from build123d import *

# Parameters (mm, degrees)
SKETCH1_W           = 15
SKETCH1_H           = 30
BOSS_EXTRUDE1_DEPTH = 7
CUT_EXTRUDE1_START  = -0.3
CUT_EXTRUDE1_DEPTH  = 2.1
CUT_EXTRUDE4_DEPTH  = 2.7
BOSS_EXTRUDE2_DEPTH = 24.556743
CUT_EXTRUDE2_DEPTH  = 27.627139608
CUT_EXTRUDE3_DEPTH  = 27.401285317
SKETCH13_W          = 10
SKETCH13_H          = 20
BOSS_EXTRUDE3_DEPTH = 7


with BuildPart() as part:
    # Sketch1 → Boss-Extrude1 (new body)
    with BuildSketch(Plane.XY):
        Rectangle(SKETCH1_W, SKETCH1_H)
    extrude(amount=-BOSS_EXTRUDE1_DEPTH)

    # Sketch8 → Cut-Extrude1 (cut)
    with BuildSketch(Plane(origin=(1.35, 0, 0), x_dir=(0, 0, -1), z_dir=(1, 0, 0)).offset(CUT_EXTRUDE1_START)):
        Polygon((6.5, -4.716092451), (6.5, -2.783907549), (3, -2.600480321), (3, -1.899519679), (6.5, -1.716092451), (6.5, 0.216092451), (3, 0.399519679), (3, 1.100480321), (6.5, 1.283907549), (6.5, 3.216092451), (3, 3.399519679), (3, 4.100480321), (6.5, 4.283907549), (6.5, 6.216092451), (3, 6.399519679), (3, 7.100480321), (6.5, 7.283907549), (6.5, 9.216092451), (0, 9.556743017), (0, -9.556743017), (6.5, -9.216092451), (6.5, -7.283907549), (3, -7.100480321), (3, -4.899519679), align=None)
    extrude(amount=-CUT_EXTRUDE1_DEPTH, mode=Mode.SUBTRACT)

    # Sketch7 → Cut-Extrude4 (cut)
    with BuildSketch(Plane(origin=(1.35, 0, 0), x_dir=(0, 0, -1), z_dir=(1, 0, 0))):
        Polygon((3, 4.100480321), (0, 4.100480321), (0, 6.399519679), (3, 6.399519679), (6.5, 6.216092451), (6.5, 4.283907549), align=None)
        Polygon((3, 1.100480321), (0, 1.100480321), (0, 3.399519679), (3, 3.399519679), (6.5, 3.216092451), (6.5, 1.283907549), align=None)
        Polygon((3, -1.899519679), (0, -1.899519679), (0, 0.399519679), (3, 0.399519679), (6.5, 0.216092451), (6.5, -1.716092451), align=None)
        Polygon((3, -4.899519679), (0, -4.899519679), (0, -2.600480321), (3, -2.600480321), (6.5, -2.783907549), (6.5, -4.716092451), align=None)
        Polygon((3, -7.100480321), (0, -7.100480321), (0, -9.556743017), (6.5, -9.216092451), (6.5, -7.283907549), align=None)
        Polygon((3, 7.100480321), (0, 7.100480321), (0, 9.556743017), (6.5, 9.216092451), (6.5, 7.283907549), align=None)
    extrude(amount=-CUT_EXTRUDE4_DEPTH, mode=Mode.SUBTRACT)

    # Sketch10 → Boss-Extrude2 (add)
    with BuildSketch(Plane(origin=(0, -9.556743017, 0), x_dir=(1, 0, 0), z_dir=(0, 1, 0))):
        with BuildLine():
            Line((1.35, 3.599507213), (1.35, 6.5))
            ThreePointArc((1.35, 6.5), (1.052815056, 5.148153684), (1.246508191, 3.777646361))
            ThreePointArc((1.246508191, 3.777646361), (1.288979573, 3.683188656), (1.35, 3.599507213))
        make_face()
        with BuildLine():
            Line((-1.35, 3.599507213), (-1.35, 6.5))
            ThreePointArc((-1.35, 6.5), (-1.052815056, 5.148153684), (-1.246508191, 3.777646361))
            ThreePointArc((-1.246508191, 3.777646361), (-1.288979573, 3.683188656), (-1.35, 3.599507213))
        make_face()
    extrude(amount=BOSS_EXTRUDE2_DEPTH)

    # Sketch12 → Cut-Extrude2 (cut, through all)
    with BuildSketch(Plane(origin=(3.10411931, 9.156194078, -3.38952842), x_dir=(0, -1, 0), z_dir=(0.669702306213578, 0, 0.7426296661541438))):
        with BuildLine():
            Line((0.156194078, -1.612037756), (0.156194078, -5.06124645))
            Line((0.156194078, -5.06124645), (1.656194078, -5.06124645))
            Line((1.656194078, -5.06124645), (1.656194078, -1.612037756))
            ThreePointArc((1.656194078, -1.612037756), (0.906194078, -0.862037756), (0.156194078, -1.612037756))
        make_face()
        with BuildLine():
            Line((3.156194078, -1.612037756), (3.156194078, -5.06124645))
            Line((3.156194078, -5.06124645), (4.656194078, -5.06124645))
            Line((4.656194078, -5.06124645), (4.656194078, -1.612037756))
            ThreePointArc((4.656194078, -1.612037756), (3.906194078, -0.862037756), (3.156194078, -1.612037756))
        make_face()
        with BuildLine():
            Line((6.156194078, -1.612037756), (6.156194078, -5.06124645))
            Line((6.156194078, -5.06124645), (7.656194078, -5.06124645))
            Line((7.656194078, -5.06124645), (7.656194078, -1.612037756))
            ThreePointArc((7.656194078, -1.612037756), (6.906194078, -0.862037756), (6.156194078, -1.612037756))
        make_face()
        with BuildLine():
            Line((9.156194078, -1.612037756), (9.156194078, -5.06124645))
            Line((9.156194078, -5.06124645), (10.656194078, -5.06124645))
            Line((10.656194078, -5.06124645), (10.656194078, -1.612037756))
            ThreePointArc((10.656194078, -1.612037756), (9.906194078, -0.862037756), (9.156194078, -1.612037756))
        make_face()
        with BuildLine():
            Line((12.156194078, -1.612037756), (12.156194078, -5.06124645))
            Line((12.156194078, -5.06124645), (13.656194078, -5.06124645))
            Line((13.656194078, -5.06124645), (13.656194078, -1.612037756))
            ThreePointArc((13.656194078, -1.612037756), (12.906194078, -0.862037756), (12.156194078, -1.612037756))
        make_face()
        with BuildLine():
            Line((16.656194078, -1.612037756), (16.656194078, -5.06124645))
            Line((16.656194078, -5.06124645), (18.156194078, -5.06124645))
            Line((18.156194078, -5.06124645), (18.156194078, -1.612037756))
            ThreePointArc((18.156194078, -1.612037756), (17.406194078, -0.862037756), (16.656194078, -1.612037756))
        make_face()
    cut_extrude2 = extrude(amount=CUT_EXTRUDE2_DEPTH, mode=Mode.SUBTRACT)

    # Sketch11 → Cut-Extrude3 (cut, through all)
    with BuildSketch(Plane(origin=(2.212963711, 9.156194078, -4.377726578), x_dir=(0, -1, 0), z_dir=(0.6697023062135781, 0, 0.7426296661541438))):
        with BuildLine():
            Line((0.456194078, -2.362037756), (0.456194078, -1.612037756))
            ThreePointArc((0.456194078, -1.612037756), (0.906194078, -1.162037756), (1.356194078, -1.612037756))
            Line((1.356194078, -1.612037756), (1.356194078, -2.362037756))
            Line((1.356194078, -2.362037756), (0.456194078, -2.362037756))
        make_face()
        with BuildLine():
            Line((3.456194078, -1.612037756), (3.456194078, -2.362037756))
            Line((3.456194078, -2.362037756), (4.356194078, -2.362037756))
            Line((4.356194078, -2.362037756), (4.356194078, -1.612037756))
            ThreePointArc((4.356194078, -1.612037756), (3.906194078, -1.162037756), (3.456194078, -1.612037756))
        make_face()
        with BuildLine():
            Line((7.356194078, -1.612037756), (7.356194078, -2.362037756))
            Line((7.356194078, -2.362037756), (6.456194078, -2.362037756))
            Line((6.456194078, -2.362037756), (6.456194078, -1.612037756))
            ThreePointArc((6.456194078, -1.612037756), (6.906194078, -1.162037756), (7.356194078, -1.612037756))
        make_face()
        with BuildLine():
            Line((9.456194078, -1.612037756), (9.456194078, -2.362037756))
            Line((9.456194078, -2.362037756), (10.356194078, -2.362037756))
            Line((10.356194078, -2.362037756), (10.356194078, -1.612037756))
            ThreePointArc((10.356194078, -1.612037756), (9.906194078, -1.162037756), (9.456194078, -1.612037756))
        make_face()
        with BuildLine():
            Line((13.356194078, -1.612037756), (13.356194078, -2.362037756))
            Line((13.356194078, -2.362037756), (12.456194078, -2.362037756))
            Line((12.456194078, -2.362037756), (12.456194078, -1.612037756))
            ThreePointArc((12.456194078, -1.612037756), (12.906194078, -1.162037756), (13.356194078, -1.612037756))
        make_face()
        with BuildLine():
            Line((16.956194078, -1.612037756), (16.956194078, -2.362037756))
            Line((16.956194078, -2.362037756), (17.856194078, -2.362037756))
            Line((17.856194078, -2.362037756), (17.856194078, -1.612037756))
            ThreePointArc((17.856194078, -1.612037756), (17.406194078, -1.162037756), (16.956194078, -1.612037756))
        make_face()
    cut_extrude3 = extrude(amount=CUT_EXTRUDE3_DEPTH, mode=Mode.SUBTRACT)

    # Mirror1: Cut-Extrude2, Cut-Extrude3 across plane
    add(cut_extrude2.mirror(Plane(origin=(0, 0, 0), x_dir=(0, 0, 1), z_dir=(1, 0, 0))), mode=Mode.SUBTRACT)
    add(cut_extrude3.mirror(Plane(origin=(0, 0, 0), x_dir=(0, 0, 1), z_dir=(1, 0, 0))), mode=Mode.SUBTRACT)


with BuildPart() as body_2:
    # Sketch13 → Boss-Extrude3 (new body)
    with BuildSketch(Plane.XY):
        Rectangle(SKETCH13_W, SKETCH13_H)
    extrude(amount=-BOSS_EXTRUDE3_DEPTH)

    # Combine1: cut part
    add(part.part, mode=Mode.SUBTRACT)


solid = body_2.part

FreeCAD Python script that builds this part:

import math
import FreeCAD as App
import Part
import Sketcher

V = App.Vector
Q = App.Units.Quantity

doc = App.newDocument("Part")
body = doc.addObject("PartDesign::Body", "Body")

sketch1 = body.newObject("Sketcher::SketchObject", "Sketch")
sketch1.AttachmentSupport = (doc.getObject("XY_Plane"), [""])
sketch1.MapMode = "FlatFace"
sketch1.addGeometry([
    Part.LineSegment(V(-7.5, 15, 0), V(-7.5, -15, 0)),
    Part.LineSegment(V(-7.5, -15, 0), V(7.5, -15, 0)),
    Part.LineSegment(V(7.5, -15, 0), V(7.5, 15, 0)),
    Part.LineSegment(V(7.5, 15, 0), V(-7.5, 15, 0)),
], False)
sketch1.addConstraint([
    Sketcher.Constraint("Coincident", 0, 2, 1, 1),
    Sketcher.Constraint("Coincident", 1, 2, 2, 1),
    Sketcher.Constraint("Coincident", 2, 2, 3, 1),
    Sketcher.Constraint("Coincident", 3, 2, 0, 1),
    Sketcher.Constraint("Vertical", 0),
    Sketcher.Constraint("Horizontal", 1),
    Sketcher.Constraint("Vertical", 2),
    Sketcher.Constraint("Horizontal", 3),
    Sketcher.Constraint("Symmetric", 0, 2, 2, 2, -1, 1),
    Sketcher.Constraint("DistanceX", 1, 1, 1, 2, Q("15 mm")),
    Sketcher.Constraint("DistanceY", 0, 2, 0, 1, Q("30 mm")),
])
pad1 = body.newObject("PartDesign::Pad", "Pad")
pad1.Profile = sketch1
pad1.Length = 7
pad1.Reversed = True

sketch2 = body.newObject("Sketcher::SketchObject", "Sketch001")
sketch2.AttachmentSupport = (doc.getObject("YZ_Plane"), [""])
sketch2.MapMode = "FlatFace"
sketch2.AttachmentOffset = App.Placement(V(0, 0, 1.05), App.Rotation())
sketch2.addGeometry([
    Part.LineSegment(V(-4.716092, -6.5, 0), V(-2.783908, -6.5, 0)),
    Part.LineSegment(V(-2.783908, -6.5, 0), V(-2.60048, -3, 0)),
    Part.LineSegment(V(-2.60048, -3, 0), V(-1.89952, -3, 0)),
    Part.LineSegment(V(-1.89952, -3, 0), V(-1.716092, -6.5, 0)),
    Part.LineSegment(V(-1.716092, -6.5, 0), V(0.216092, -6.5, 0)),
    Part.LineSegment(V(0.216092, -6.5, 0), V(0.39952, -3, 0)),
    Part.LineSegment(V(0.39952, -3, 0), V(1.10048, -3, 0)),
    Part.LineSegment(V(1.10048, -3, 0), V(1.283908, -6.5, 0)),
    Part.LineSegment(V(1.283908, -6.5, 0), V(3.216092, -6.5, 0)),
    Part.LineSegment(V(3.216092, -6.5, 0), V(3.39952, -3, 0)),
    Part.LineSegment(V(3.39952, -3, 0), V(4.10048, -3, 0)),
    Part.LineSegment(V(4.10048, -3, 0), V(4.283908, -6.5, 0)),
    Part.LineSegment(V(4.283908, -6.5, 0), V(6.216092, -6.5, 0)),
    Part.LineSegment(V(6.216092, -6.5, 0), V(6.39952, -3, 0)),
    Part.LineSegment(V(6.39952, -3, 0), V(7.10048, -3, 0)),
    Part.LineSegment(V(7.10048, -3, 0), V(7.283908, -6.5, 0)),
    Part.LineSegment(V(7.283908, -6.5, 0), V(9.216092, -6.5, 0)),
    Part.LineSegment(V(9.216092, -6.5, 0), V(9.556743, 0, 0)),
    Part.LineSegment(V(9.556743, 0, 0), V(-9.556743, 0, 0)),
    Part.LineSegment(V(-9.556743, 0, 0), V(-9.216092, -6.5, 0)),
    Part.LineSegment(V(-9.216092, -6.5, 0), V(-7.283908, -6.5, 0)),
    Part.LineSegment(V(-7.283908, -6.5, 0), V(-7.10048, -3, 0)),
    Part.LineSegment(V(-7.10048, -3, 0), V(-4.89952, -3, 0)),
    Part.LineSegment(V(-4.89952, -3, 0), V(-4.716092, -6.5, 0)),
], False)
sketch2.addConstraint([
    Sketcher.Constraint("Coincident", 0, 2, 1, 1),
    Sketcher.Constraint("Coincident", 1, 2, 2, 1),
    Sketcher.Constraint("Coincident", 2, 2, 3, 1),
    Sketcher.Constraint("Coincident", 3, 2, 4, 1),
    Sketcher.Constraint("Coincident", 4, 2, 5, 1),
    Sketcher.Constraint("Coincident", 5, 2, 6, 1),
    Sketcher.Constraint("Coincident", 6, 2, 7, 1),
    Sketcher.Constraint("Coincident", 7, 2, 8, 1),
    Sketcher.Constraint("Coincident", 8, 2, 9, 1),
    Sketcher.Constraint("Coincident", 9, 2, 10, 1),
    Sketcher.Constraint("Coincident", 10, 2, 11, 1),
    Sketcher.Constraint("Coincident", 11, 2, 12, 1),
    Sketcher.Constraint("Coincident", 12, 2, 13, 1),
    Sketcher.Constraint("Coincident", 13, 2, 14, 1),
    Sketcher.Constraint("Coincident", 14, 2, 15, 1),
    Sketcher.Constraint("Coincident", 15, 2, 16, 1),
    Sketcher.Constraint("Coincident", 16, 2, 17, 1),
    Sketcher.Constraint("Coincident", 17, 2, 18, 1),
    Sketcher.Constraint("Coincident", 18, 2, 19, 1),
    Sketcher.Constraint("Coincident", 19, 2, 20, 1),
    Sketcher.Constraint("Coincident", 20, 2, 21, 1),
    Sketcher.Constraint("Coincident", 21, 2, 22, 1),
    Sketcher.Constraint("Coincident", 22, 2, 23, 1),
    Sketcher.Constraint("Coincident", 23, 2, 0, 1),
    Sketcher.Constraint("Horizontal", 0),
    Sketcher.Constraint("Horizontal", 2),
    Sketcher.Constraint("Horizontal", 4),
    Sketcher.Constraint("Horizontal", 6),
    Sketcher.Constraint("Horizontal", 8),
    Sketcher.Constraint("Horizontal", 10),
    Sketcher.Constraint("Horizontal", 12),
    Sketcher.Constraint("Horizontal", 14),
    Sketcher.Constraint("Horizontal", 16),
    Sketcher.Constraint("Horizontal", 18),
    Sketcher.Constraint("Horizontal", 20),
    Sketcher.Constraint("Horizontal", 22),
    Sketcher.Constraint("Symmetric", 17, 2, 18, 2, -1, 1),
    Sketcher.Constraint("Symmetric", 16, 2, 19, 2, -2),
    Sketcher.Constraint("Symmetric", 14, 2, 21, 2, -2),
    Sketcher.Constraint("Parallel", 1, 5),
    Sketcher.Constraint("Parallel", 3, 7),
    Sketcher.Constraint("Parallel", 5, 9),
    Sketcher.Constraint("Parallel", 7, 11),
    Sketcher.Constraint("Parallel", 9, 13),
    Sketcher.Constraint("Parallel", 11, 15),
    Sketcher.Constraint("Parallel", 13, 17),
    Sketcher.Constraint("Parallel", 15, 19),
    Sketcher.Constraint("Parallel", 17, 21),
    Sketcher.Constraint("Parallel", 19, 23),
    Sketcher.Constraint("Horizontal", 0, 2, 3, 2),
    Sketcher.Constraint("Horizontal", 2, 2, 5, 2),
    Sketcher.Constraint("Horizontal", 4, 2, 7, 2),
    Sketcher.Constraint("Horizontal", 6, 2, 9, 2),
    Sketcher.Constraint("Horizontal", 8, 2, 11, 2),
    Sketcher.Constraint("Horizontal", 10, 2, 13, 2),
    Sketcher.Constraint("Horizontal", 12, 2, 15, 2),
    Sketcher.Constraint("Equal", 0, 4),
    Sketcher.Constraint("Equal", 2, 6),
    Sketcher.Constraint("Equal", 4, 8),
    Sketcher.Constraint("Equal", 6, 10),
    Sketcher.Constraint("Equal", 8, 12),
    Sketcher.Constraint("Equal", 10, 14),
    Sketcher.Constraint("Equal", 12, 16),
    Sketcher.Constraint("Angle", 1, Q("87 deg")),
    Sketcher.Constraint("DistanceY", 1, 2, -1, 1, Q("3 mm")),
    Sketcher.Constraint("DistanceX", 0, 2, 4, 2, Q("3 mm")),
    Sketcher.Constraint("DistanceY", 0, 2, -1, 1, Q("6.5 mm")),
    Sketcher.Constraint("DistanceX", 19, 2, 3, 2, Q("7.5 mm")),
    Sketcher.Constraint("DistanceX", 2, 1, 2, 2, Q("0.700961 mm")),
])
pocket1 = body.newObject("PartDesign::Pocket", "Pocket")
pocket1.Profile = sketch2
pocket1.Length = 2.1

sketch3 = body.newObject("Sketcher::SketchObject", "Sketch002")
sketch3.AttachmentSupport = (doc.getObject("YZ_Plane"), [""])
sketch3.MapMode = "FlatFace"
sketch3.AttachmentOffset = App.Placement(V(0, 0, 1.35), App.Rotation())
sketch3.addGeometry([
    Part.LineSegment(V(4.10048, 0, 0), V(4.10048, -3, 0)),
    Part.LineSegment(V(4.10048, -3, 0), V(4.283908, -6.5, 0)),
    Part.LineSegment(V(4.283908, -6.5, 0), V(6.216092, -6.5, 0)),
    Part.LineSegment(V(6.216092, -6.5, 0), V(6.39952, -3, 0)),
    Part.LineSegment(V(6.39952, -3, 0), V(6.39952, 0, 0)),
    Part.LineSegment(V(6.39952, 0, 0), V(4.10048, 0, 0)),
    Part.LineSegment(V(1.10048, 0, 0), V(1.10048, -3, 0)),
    Part.LineSegment(V(1.10048, -3, 0), V(1.283908, -6.5, 0)),
    Part.LineSegment(V(1.283908, -6.5, 0), V(3.216092, -6.5, 0)),
    Part.LineSegment(V(3.216092, -6.5, 0), V(3.39952, -3, 0)),
    Part.LineSegment(V(3.39952, -3, 0), V(3.39952, 0, 0)),
    Part.LineSegment(V(3.39952, 0, 0), V(1.10048, 0, 0)),
    Part.LineSegment(V(-1.89952, 0, 0), V(-1.89952, -3, 0)),
    Part.LineSegment(V(-1.89952, -3, 0), V(-1.716092, -6.5, 0)),
    Part.LineSegment(V(-1.716092, -6.5, 0), V(0.216092, -6.5, 0)),
    Part.LineSegment(V(0.216092, -6.5, 0), V(0.39952, -3, 0)),
    Part.LineSegment(V(0.39952, -3, 0), V(0.39952, 0, 0)),
    Part.LineSegment(V(0.39952, 0, 0), V(-1.89952, 0, 0)),
    Part.LineSegment(V(-4.89952, 0, 0), V(-4.89952, -3, 0)),
    Part.LineSegment(V(-4.89952, -3, 0), V(-4.716092, -6.5, 0)),
    Part.LineSegment(V(-4.716092, -6.5, 0), V(-2.783908, -6.5, 0)),
    Part.LineSegment(V(-2.783908, -6.5, 0), V(-2.60048, -3, 0)),
    Part.LineSegment(V(-2.60048, -3, 0), V(-2.60048, 0, 0)),
    Part.LineSegment(V(-2.60048, 0, 0), V(-4.89952, 0, 0)),
    Part.LineSegment(V(-7.10048, -3, 0), V(-7.10048, 0, 0)),
    Part.LineSegment(V(-7.10048, 0, 0), V(-9.556743, 0, 0)),
    Part.LineSegment(V(-9.556743, 0, 0), V(-9.216092, -6.5, 0)),
    Part.LineSegment(V(-9.216092, -6.5, 0), V(-7.283908, -6.5, 0)),
    Part.LineSegment(V(-7.283908, -6.5, 0), V(-7.10048, -3, 0)),
    Part.LineSegment(V(7.10048, 0, 0), V(7.10048, -3, 0)),
    Part.LineSegment(V(7.10048, -3, 0), V(7.283908, -6.5, 0)),
    Part.LineSegment(V(7.283908, -6.5, 0), V(9.216092, -6.5, 0)),
    Part.LineSegment(V(9.216092, -6.5, 0), V(9.556743, 0, 0)),
    Part.LineSegment(V(9.556743, 0, 0), V(7.10048, 0, 0)),
], False)
sketch3.addConstraint([
    Sketcher.Constraint("Coincident", 0, 2, 1, 1),
    Sketcher.Constraint("Coincident", 1, 2, 2, 1),
    Sketcher.Constraint("Coincident", 2, 2, 3, 1),
    Sketcher.Constraint("Coincident", 3, 2, 4, 1),
    Sketcher.Constraint("Coincident", 4, 2, 5, 1),
    Sketcher.Constraint("Coincident", 5, 2, 0, 1),
    Sketcher.Constraint("Coincident", 6, 2, 7, 1),
    Sketcher.Constraint("Coincident", 7, 2, 8, 1),
    Sketcher.Constraint("Coincident", 8, 2, 9, 1),
    Sketcher.Constraint("Coincident", 9, 2, 10, 1),
    Sketcher.Constraint("Coincident", 10, 2, 11, 1),
    Sketcher.Constraint("Coincident", 11, 2, 6, 1),
    Sketcher.Constraint("Coincident", 12, 2, 13, 1),
    Sketcher.Constraint("Coincident", 13, 2, 14, 1),
    Sketcher.Constraint("Coincident", 14, 2, 15, 1),
    Sketcher.Constraint("Coincident", 15, 2, 16, 1),
    Sketcher.Constraint("Coincident", 16, 2, 17, 1),
    Sketcher.Constraint("Coincident", 17, 2, 12, 1),
    Sketcher.Constraint("Coincident", 18, 2, 19, 1),
    Sketcher.Constraint("Coincident", 19, 2, 20, 1),
    Sketcher.Constraint("Coincident", 20, 2, 21, 1),
    Sketcher.Constraint("Coincident", 21, 2, 22, 1),
    Sketcher.Constraint("Coincident", 22, 2, 23, 1),
    Sketcher.Constraint("Coincident", 23, 2, 18, 1),
    Sketcher.Constraint("Coincident", 24, 2, 25, 1),
    Sketcher.Constraint("Coincident", 25, 2, 26, 1),
    Sketcher.Constraint("Coincident", 26, 2, 27, 1),
    Sketcher.Constraint("Coincident", 27, 2, 28, 1),
    Sketcher.Constraint("Coincident", 28, 2, 24, 1),
    Sketcher.Constraint("Coincident", 29, 2, 30, 1),
    Sketcher.Constraint("Coincident", 30, 2, 31, 1),
    Sketcher.Constraint("Coincident", 31, 2, 32, 1),
    Sketcher.Constraint("Coincident", 32, 2, 33, 1),
    Sketcher.Constraint("Coincident", 33, 2, 29, 1),
    Sketcher.Constraint("Vertical", 0),
    Sketcher.Constraint("Horizontal", 2),
    Sketcher.Constraint("Vertical", 4),
    Sketcher.Constraint("Horizontal", 5),
    Sketcher.Constraint("Vertical", 6),
    Sketcher.Constraint("Horizontal", 8),
    Sketcher.Constraint("Vertical", 10),
    Sketcher.Constraint("Horizontal", 11),
    Sketcher.Constraint("Vertical", 12),
    Sketcher.Constraint("Horizontal", 14),
    Sketcher.Constraint("Vertical", 16),
    Sketcher.Constraint("Horizontal", 17),
    Sketcher.Constraint("Vertical", 18),
    Sketcher.Constraint("Horizontal", 20),
    Sketcher.Constraint("Vertical", 22),
    Sketcher.Constraint("Horizontal", 23),
    Sketcher.Constraint("Vertical", 24),
    Sketcher.Constraint("Horizontal", 25),
    Sketcher.Constraint("Horizontal", 27),
    Sketcher.Constraint("Vertical", 29),
    Sketcher.Constraint("Horizontal", 31),
    Sketcher.Constraint("Horizontal", 33),
    Sketcher.Constraint("Symmetric", 25, 2, 32, 2, -1, 1),
    Sketcher.Constraint("Symmetric", 28, 2, 29, 2, -2),
    Sketcher.Constraint("Symmetric", 27, 2, 30, 2, -2),
    Sketcher.Constraint("PointOnObject", 4, 2, -1),
    Sketcher.Constraint("PointOnObject", 10, 2, -1),
    Sketcher.Constraint("PointOnObject", 16, 2, -1),
    Sketcher.Constraint("PointOnObject", 22, 2, -1),
    Sketcher.Constraint("PointOnObject", 24, 2, -1),
    Sketcher.Constraint("Parallel", 1, 7),
    Sketcher.Constraint("Parallel", 3, 9),
    Sketcher.Constraint("Parallel", 7, 13),
    Sketcher.Constraint("Parallel", 9, 15),
    Sketcher.Constraint("Parallel", 13, 19),
    Sketcher.Constraint("Parallel", 15, 21),
    Sketcher.Constraint("Parallel", 19, 26),
    Sketcher.Constraint("Parallel", 21, 28),
    Sketcher.Constraint("Parallel", 26, 30),
    Sketcher.Constraint("Parallel", 28, 32),
    Sketcher.Constraint("Horizontal", 0, 2, 3, 2),
    Sketcher.Constraint("Horizontal", 3, 2, 6, 2),
    Sketcher.Constraint("Horizontal", 2, 2, 7, 2),
    Sketcher.Constraint("Horizontal", 6, 2, 9, 2),
    Sketcher.Constraint("Horizontal", 9, 2, 12, 2),
    Sketcher.Constraint("Horizontal", 8, 2, 13, 2),
    Sketcher.Constraint("Horizontal", 12, 2, 15, 2),
    Sketcher.Constraint("Horizontal", 15, 2, 18, 2),
    Sketcher.Constraint("Horizontal", 14, 2, 19, 2),
    Sketcher.Constraint("Horizontal", 18, 2, 21, 2),
    Sketcher.Constraint("Horizontal", 20, 2, 26, 2),
    Sketcher.Constraint("Horizontal", 21, 2, 28, 2),
    Sketcher.Constraint("Equal", 2, 8),
    Sketcher.Constraint("Equal", 8, 14),
    Sketcher.Constraint("Equal", 14, 20),
    Sketcher.Constraint("Equal", 20, 27),
    Sketcher.Constraint("DistanceY", 0, 2, 0, 1, Q("3 mm")),
    Sketcher.Constraint("Angle", 1, Q("-87 deg")),
    Sketcher.Constraint("DistanceX", 6, 2, 0, 2, Q("3 mm")),
    Sketcher.Constraint("DistanceX", 12, 2, 6, 2, Q("3 mm")),
    Sketcher.Constraint("DistanceX", 18, 2, 12, 2, Q("3 mm")),
    Sketcher.Constraint("DistanceX", 0, 2, 29, 2, Q("3 mm")),
    Sketcher.Constraint("DistanceY", 1, 2, -1, 1, Q("6.5 mm")),
    Sketcher.Constraint("DistanceX", 24, 2, 22, 2, Q("4.5 mm")),
    Sketcher.Constraint("DistanceX", 5, 2, 5, 1, Q("2.299039 mm")),
])
pocket2 = body.newObject("PartDesign::Pocket", "Pocket001")
pocket2.Profile = sketch3
pocket2.Length = 2.7

sketch4 = body.newObject("Sketcher::SketchObject", "Sketch003")
sketch4.AttachmentSupport = (doc.getObject("XZ_Plane"), [""])
sketch4.MapMode = "FlatFace"
sketch4.AttachmentOffset = App.Placement(V(0, 0, 9.556743), App.Rotation())
sketch4.addGeometry([
    Part.LineSegment(V(1.35, -3.599507, 0), V(1.35, -6.5, 0)),
    Part.ArcOfCircle(Part.Circle(V(4.95, -5, 0), V(0, 0, 1), 3.9), math.radians(161.734301), math.radians(202.619865)),
    Part.ArcOfCircle(Part.Circle(V(1.721315, -3.934358, 0), V(0, 0, 1), 0.5), math.radians(137.955907), math.radians(161.734302)),
    Part.LineSegment(V(-1.35, -6.5, 0), V(-1.35, -3.599507, 0)),
    Part.ArcOfCircle(Part.Circle(V(-1.721315, -3.934358, 0), V(0, 0, 1), 0.5), math.radians(18.265698), math.radians(42.044093)),
    Part.ArcOfCircle(Part.Circle(V(-4.95, -5, 0), V(0, 0, 1), 3.9), math.radians(-22.619865), math.radians(18.265699)),
], False)
sketch4.addConstraint([
    Sketcher.Constraint("Coincident", 0, 2, 1, 2),
    Sketcher.Constraint("Tangent", 1, 1, 2, 2),
    Sketcher.Constraint("Coincident", 2, 1, 0, 1),
    Sketcher.Constraint("Coincident", 3, 2, 4, 2),
    Sketcher.Constraint("Tangent", 4, 1, 5, 2),
    Sketcher.Constraint("Coincident", 5, 1, 3, 1),
    Sketcher.Constraint("Vertical", 0),
    Sketcher.Constraint("Vertical", 3),
    Sketcher.Constraint("Equal", 2, 4),
    Sketcher.Constraint("Equal", 1, 5),
    Sketcher.Constraint("Symmetric", 2, 3, 4, 3, -2),
    Sketcher.Constraint("Symmetric", 0, 2, 5, 1, -2),
    Sketcher.Constraint("Radius", 1, Q("3.9 mm")),
    Sketcher.Constraint("Radius", 2, Q("0.5 mm")),
    Sketcher.Constraint("DistanceY", 1, 3, -1, 1, Q("5 mm")),
    Sketcher.Constraint("DistanceY", 0, 2, -1, 1, Q("6.5 mm")),
    Sketcher.Constraint("DistanceX", 5, 3, 1, 3, Q("9.9 mm")),
    Sketcher.Constraint("DistanceY", 0, 2, 0, 1, Q("2.900493 mm")),
])
pad2 = body.newObject("PartDesign::Pad", "Pad001")
pad2.Profile = sketch4
pad2.Length = 24.556743
pad2.Reversed = True

sketch5 = body.newObject("Sketcher::SketchObject", "Sketch004")
sketch5.Placement = App.Placement(V(3.104119, 9.156194, -3.389528), App.Rotation(V(0, -1, 0), V(0.742629666, 0, -0.669702306), V(0.669702306, 0, 0.742629666), "ZXY"))
sketch5.addGeometry([
    Part.LineSegment(V(0.156194, -1.612038, 0), V(0.156194, -5.061246, 0)),
    Part.LineSegment(V(0.156194, -5.061246, 0), V(1.656194, -5.061246, 0)),
    Part.LineSegment(V(1.656194, -5.061246, 0), V(1.656194, -1.612038, 0)),
    Part.ArcOfCircle(Part.Circle(V(0.906194, -1.612038, 0), V(0, 0, 1), 0.75), math.radians(0), math.radians(180)),
    Part.LineSegment(V(3.156194, -1.612038, 0), V(3.156194, -5.061246, 0)),
    Part.LineSegment(V(3.156194, -5.061246, 0), V(4.656194, -5.061246, 0)),
    Part.LineSegment(V(4.656194, -5.061246, 0), V(4.656194, -1.612038, 0)),
    Part.ArcOfCircle(Part.Circle(V(3.906194, -1.612038, 0), V(0, 0, 1), 0.75), math.radians(0), math.radians(180)),
    Part.LineSegment(V(6.156194, -1.612038, 0), V(6.156194, -5.061246, 0)),
    Part.LineSegment(V(6.156194, -5.061246, 0), V(7.656194, -5.061246, 0)),
    Part.LineSegment(V(7.656194, -5.061246, 0), V(7.656194, -1.612038, 0)),
    Part.ArcOfCircle(Part.Circle(V(6.906194, -1.612038, 0), V(0, 0, 1), 0.75), math.radians(0), math.radians(180)),
    Part.LineSegment(V(9.156194, -1.612038, 0), V(9.156194, -5.061246, 0)),
    Part.LineSegment(V(9.156194, -5.061246, 0), V(10.656194, -5.061246, 0)),
    Part.LineSegment(V(10.656194, -5.061246, 0), V(10.656194, -1.612038, 0)),
    Part.ArcOfCircle(Part.Circle(V(9.906194, -1.612038, 0), V(0, 0, 1), 0.75), math.radians(0), math.radians(180)),
    Part.LineSegment(V(12.156194, -1.612038, 0), V(12.156194, -5.061246, 0)),
    Part.LineSegment(V(12.156194, -5.061246, 0), V(13.656194, -5.061246, 0)),
    Part.LineSegment(V(13.656194, -5.061246, 0), V(13.656194, -1.612038, 0)),
    Part.ArcOfCircle(Part.Circle(V(12.906194, -1.612038, 0), V(0, 0, 1), 0.75), math.radians(0), math.radians(180)),
    Part.LineSegment(V(16.656194, -1.612038, 0), V(16.656194, -5.061246, 0)),
    Part.LineSegment(V(16.656194, -5.061246, 0), V(18.156194, -5.061246, 0)),
    Part.LineSegment(V(18.156194, -5.061246, 0), V(18.156194, -1.612038, 0)),
    Part.ArcOfCircle(Part.Circle(V(17.406194, -1.612038, 0), V(0, 0, 1), 0.75), math.radians(0), math.radians(180)),
], False)
sketch5.addConstraint([
    Sketcher.Constraint("Coincident", 0, 2, 1, 1),
    Sketcher.Constraint("Coincident", 1, 2, 2, 1),
    Sketcher.Constraint("Tangent", 2, 2, 3, 1),
    Sketcher.Constraint("Tangent", 3, 2, 0, 1),
    Sketcher.Constraint("Coincident", 4, 2, 5, 1),
    Sketcher.Constraint("Coincident", 5, 2, 6, 1),
    Sketcher.Constraint("Tangent", 6, 2, 7, 1),
    Sketcher.Constraint("Tangent", 7, 2, 4, 1),
    Sketcher.Constraint("Coincident", 8, 2, 9, 1),
    Sketcher.Constraint("Coincident", 9, 2, 10, 1),
    Sketcher.Constraint("Tangent", 10, 2, 11, 1),
    Sketcher.Constraint("Tangent", 11, 2, 8, 1),
    Sketcher.Constraint("Coincident", 12, 2, 13, 1),
    Sketcher.Constraint("Coincident", 13, 2, 14, 1),
    Sketcher.Constraint("Tangent", 14, 2, 15, 1),
    Sketcher.Constraint("Tangent", 15, 2, 12, 1),
    Sketcher.Constraint("Coincident", 16, 2, 17, 1),
    Sketcher.Constraint("Coincident", 17, 2, 18, 1),
    Sketcher.Constraint("Tangent", 18, 2, 19, 1),
    Sketcher.Constraint("Tangent", 19, 2, 16, 1),
    Sketcher.Constraint("Coincident", 20, 2, 21, 1),
    Sketcher.Constraint("Coincident", 21, 2, 22, 1),
    Sketcher.Constraint("Tangent", 22, 2, 23, 1),
    Sketcher.Constraint("Tangent", 23, 2, 20, 1),
    Sketcher.Constraint("Vertical", 0),
    Sketcher.Constraint("Horizontal", 1),
    Sketcher.Constraint("Vertical", 2),
    Sketcher.Constraint("Vertical", 4),
    Sketcher.Constraint("Horizontal", 5),
    Sketcher.Constraint("Vertical", 6),
    Sketcher.Constraint("Vertical", 8),
    Sketcher.Constraint("Horizontal", 9),
    Sketcher.Constraint("Vertical", 10),
    Sketcher.Constraint("Vertical", 12),
    Sketcher.Constraint("Horizontal", 13),
    Sketcher.Constraint("Vertical", 14),
    Sketcher.Constraint("Vertical", 16),
    Sketcher.Constraint("Horizontal", 17),
    Sketcher.Constraint("Vertical", 18),
    Sketcher.Constraint("Vertical", 20),
    Sketcher.Constraint("Horizontal", 21),
    Sketcher.Constraint("Vertical", 22),
    Sketcher.Constraint("Equal", 3, 7),
    Sketcher.Constraint("Equal", 7, 11),
    Sketcher.Constraint("Equal", 11, 15),
    Sketcher.Constraint("Equal", 15, 19),
    Sketcher.Constraint("Equal", 19, 23),
    Sketcher.Constraint("Horizontal", 3, 3, 7, 3),
    Sketcher.Constraint("Horizontal", 7, 3, 11, 3),
    Sketcher.Constraint("Horizontal", 11, 3, 15, 3),
    Sketcher.Constraint("Horizontal", 15, 3, 19, 3),
    Sketcher.Constraint("Horizontal", 19, 3, 23, 3),
    Sketcher.Constraint("Horizontal", 1, 2, 4, 2),
    Sketcher.Constraint("Horizontal", 5, 2, 8, 2),
    Sketcher.Constraint("Horizontal", 9, 2, 12, 2),
    Sketcher.Constraint("Horizontal", 13, 2, 16, 2),
    Sketcher.Constraint("Horizontal", 17, 2, 20, 2),
    Sketcher.Constraint("Radius", 3, Q("0.75 mm")),
    Sketcher.Constraint("DistanceX", 3, 3, 7, 3, Q("3 mm")),
    Sketcher.Constraint("DistanceX", 7, 3, 11, 3, Q("3 mm")),
    Sketcher.Constraint("DistanceX", 11, 3, 15, 3, Q("3 mm")),
    Sketcher.Constraint("DistanceX", 15, 3, 19, 3, Q("3 mm")),
    Sketcher.Constraint("DistanceX", 17, 2, 20, 2, Q("3 mm")),
    Sketcher.Constraint("DistanceY", 0, 2, 0, 1, Q("3.449209 mm")),
    Sketcher.Constraint("DistanceX", -1, 1, 3, 3, Q("0.906194 mm")),
    Sketcher.Constraint("DistanceY", 3, 3, -1, 1, Q("1.612038 mm")),
])
pocket3 = body.newObject("PartDesign::Pocket", "Pocket002")
pocket3.Profile = sketch5
pocket3.Type = "ThroughAll"
pocket3.Reversed = True

sketch6 = body.newObject("Sketcher::SketchObject", "Sketch005")
sketch6.Placement = App.Placement(V(2.212964, 9.156194, -4.377727), App.Rotation(V(0, -1, 0), V(0.742629666, 0, -0.669702306), V(0.669702306, 0, 0.742629666), "ZXY"))
sketch6.addGeometry([
    Part.LineSegment(V(0.456194, -1.612038, 0), V(0.456194, -2.362038, 0)),
    Part.LineSegment(V(0.456194, -2.362038, 0), V(1.356194, -2.362038, 0)),
    Part.LineSegment(V(1.356194, -2.362038, 0), V(1.356194, -1.612038, 0)),
    Part.ArcOfCircle(Part.Circle(V(0.906194, -1.612038, 0), V(0, 0, 1), 0.45), math.radians(0), math.radians(180)),
    Part.LineSegment(V(3.456194, -1.612038, 0), V(3.456194, -2.362038, 0)),
    Part.LineSegment(V(3.456194, -2.362038, 0), V(4.356194, -2.362038, 0)),
    Part.LineSegment(V(4.356194, -2.362038, 0), V(4.356194, -1.612038, 0)),
    Part.ArcOfCircle(Part.Circle(V(3.906194, -1.612038, 0), V(0, 0, 1), 0.45), math.radians(0), math.radians(180)),
    Part.LineSegment(V(7.356194, -2.362038, 0), V(7.356194, -1.612038, 0)),
    Part.ArcOfCircle(Part.Circle(V(6.906194, -1.612038, 0), V(0, 0, 1), 0.45), math.radians(0), math.radians(180)),
    Part.LineSegment(V(6.456194, -1.612038, 0), V(6.456194, -2.362038, 0)),
    Part.LineSegment(V(6.456194, -2.362038, 0), V(7.356194, -2.362038, 0)),
    Part.LineSegment(V(9.456194, -1.612038, 0), V(9.456194, -2.362038, 0)),
    Part.LineSegment(V(9.456194, -2.362038, 0), V(10.356194, -2.362038, 0)),
    Part.LineSegment(V(10.356194, -2.362038, 0), V(10.356194, -1.612038, 0)),
    Part.ArcOfCircle(Part.Circle(V(9.906194, -1.612038, 0), V(0, 0, 1), 0.45), math.radians(0), math.radians(180)),
    Part.LineSegment(V(13.356194, -2.362038, 0), V(13.356194, -1.612038, 0)),
    Part.ArcOfCircle(Part.Circle(V(12.906194, -1.612038, 0), V(0, 0, 1), 0.45), math.radians(0), math.radians(180)),
    Part.LineSegment(V(12.456194, -1.612038, 0), V(12.456194, -2.362038, 0)),
    Part.LineSegment(V(12.456194, -2.362038, 0), V(13.356194, -2.362038, 0)),
    Part.LineSegment(V(16.956194, -1.612038, 0), V(16.956194, -2.362038, 0)),
    Part.LineSegment(V(16.956194, -2.362038, 0), V(17.856194, -2.362038, 0)),
    Part.LineSegment(V(17.856194, -2.362038, 0), V(17.856194, -1.612038, 0)),
    Part.ArcOfCircle(Part.Circle(V(17.406194, -1.612038, 0), V(0, 0, 1), 0.45), math.radians(0), math.radians(180)),
], False)
sketch6.addConstraint([
    Sketcher.Constraint("Coincident", 0, 2, 1, 1),
    Sketcher.Constraint("Coincident", 1, 2, 2, 1),
    Sketcher.Constraint("Tangent", 2, 2, 3, 1),
    Sketcher.Constraint("Tangent", 3, 2, 0, 1),
    Sketcher.Constraint("Coincident", 4, 2, 5, 1),
    Sketcher.Constraint("Coincident", 5, 2, 6, 1),
    Sketcher.Constraint("Tangent", 6, 2, 7, 1),
    Sketcher.Constraint("Tangent", 7, 2, 4, 1),
    Sketcher.Constraint("Tangent", 8, 2, 9, 1),
    Sketcher.Constraint("Tangent", 9, 2, 10, 1),
    Sketcher.Constraint("Coincident", 10, 2, 11, 1),
    Sketcher.Constraint("Coincident", 11, 2, 8, 1),
    Sketcher.Constraint("Coincident", 12, 2, 13, 1),
    Sketcher.Constraint("Coincident", 13, 2, 14, 1),
    Sketcher.Constraint("Tangent", 14, 2, 15, 1),
    Sketcher.Constraint("Tangent", 15, 2, 12, 1),
    Sketcher.Constraint("Tangent", 16, 2, 17, 1),
    Sketcher.Constraint("Tangent", 17, 2, 18, 1),
    Sketcher.Constraint("Coincident", 18, 2, 19, 1),
    Sketcher.Constraint("Coincident", 19, 2, 16, 1),
    Sketcher.Constraint("Coincident", 20, 2, 21, 1),
    Sketcher.Constraint("Coincident", 21, 2, 22, 1),
    Sketcher.Constraint("Tangent", 22, 2, 23, 1),
    Sketcher.Constraint("Tangent", 23, 2, 20, 1),
    Sketcher.Constraint("Vertical", 0),
    Sketcher.Constraint("Horizontal", 1),
    Sketcher.Constraint("Vertical", 2),
    Sketcher.Constraint("Vertical", 4),
    Sketcher.Constraint("Horizontal", 5),
    Sketcher.Constraint("Vertical", 6),
    Sketcher.Constraint("Vertical", 8),
    Sketcher.Constraint("Vertical", 10),
    Sketcher.Constraint("Horizontal", 11),
    Sketcher.Constraint("Vertical", 12),
    Sketcher.Constraint("Horizontal", 13),
    Sketcher.Constraint("Vertical", 14),
    Sketcher.Constraint("Vertical", 16),
    Sketcher.Constraint("Vertical", 18),
    Sketcher.Constraint("Horizontal", 19),
    Sketcher.Constraint("Vertical", 20),
    Sketcher.Constraint("Horizontal", 21),
    Sketcher.Constraint("Vertical", 22),
    Sketcher.Constraint("Equal", 3, 7),
    Sketcher.Constraint("Equal", 7, 9),
    Sketcher.Constraint("Equal", 9, 15),
    Sketcher.Constraint("Equal", 15, 17),
    Sketcher.Constraint("Equal", 17, 23),
    Sketcher.Constraint("Horizontal", 3, 3, 7, 3),
    Sketcher.Constraint("Horizontal", 7, 3, 9, 3),
    Sketcher.Constraint("Horizontal", 9, 3, 15, 3),
    Sketcher.Constraint("Horizontal", 15, 3, 17, 3),
    Sketcher.Constraint("Horizontal", 17, 3, 23, 3),
    Sketcher.Constraint("Horizontal", 1, 2, 4, 2),
    Sketcher.Constraint("Horizontal", 5, 2, 10, 2),
    Sketcher.Constraint("Horizontal", 11, 2, 12, 2),
    Sketcher.Constraint("Horizontal", 13, 2, 18, 2),
    Sketcher.Constraint("Horizontal", 19, 2, 20, 2),
    Sketcher.Constraint("Radius", 3, Q("0.45 mm")),
    Sketcher.Constraint("DistanceX", 3, 3, 7, 3, Q("3 mm")),
    Sketcher.Constraint("DistanceX", 7, 3, 9, 3, Q("3 mm")),
    Sketcher.Constraint("DistanceX", 9, 3, 15, 3, Q("3 mm")),
    Sketcher.Constraint("DistanceX", 15, 3, 17, 3, Q("3 mm")),
    Sketcher.Constraint("DistanceY", 0, 2, 0, 1, Q("0.75 mm")),
    Sketcher.Constraint("DistanceX", 17, 3, 23, 3, Q("4.5 mm")),
    Sketcher.Constraint("DistanceX", -1, 1, 3, 3, Q("0.906194 mm")),
    Sketcher.Constraint("DistanceY", 3, 3, -1, 1, Q("1.612038 mm")),
])
pocket4 = body.newObject("PartDesign::Pocket", "Pocket003")
pocket4.Profile = sketch6
pocket4.Type = "ThroughAll"
pocket4.Reversed = True
doc.recompute()

mirrored = body.newObject("PartDesign::Mirrored", "Mirrored")
mirrored.Originals = [pocket3, pocket4]
mirrored.MirrorPlane = (doc.getObject("YZ_Plane"), [""])
body.Tip = mirrored
body2 = doc.addObject("PartDesign::Body", "Body001")

sketch7 = body2.newObject("Sketcher::SketchObject", "Sketch006")
sketch7.AttachmentSupport = (doc.getObject("XY_Plane001"), [""])
sketch7.MapMode = "FlatFace"
sketch7.addGeometry([
    Part.LineSegment(V(-5, 10, 0), V(-5, -10, 0)),
    Part.LineSegment(V(-5, -10, 0), V(5, -10, 0)),
    Part.LineSegment(V(5, -10, 0), V(5, 10, 0)),
    Part.LineSegment(V(5, 10, 0), V(-5, 10, 0)),
], False)
sketch7.addConstraint([
    Sketcher.Constraint("Coincident", 0, 2, 1, 1),
    Sketcher.Constraint("Coincident", 1, 2, 2, 1),
    Sketcher.Constraint("Coincident", 2, 2, 3, 1),
    Sketcher.Constraint("Coincident", 3, 2, 0, 1),
    Sketcher.Constraint("Vertical", 0),
    Sketcher.Constraint("Horizontal", 1),
    Sketcher.Constraint("Vertical", 2),
    Sketcher.Constraint("Horizontal", 3),
    Sketcher.Constraint("Symmetric", 0, 2, 2, 2, -1, 1),
    Sketcher.Constraint("DistanceX", 1, 1, 1, 2, Q("10 mm")),
    Sketcher.Constraint("DistanceY", 0, 2, 0, 1, Q("20 mm")),
])
pad3 = body2.newObject("PartDesign::Pad", "Pad002")
pad3.Profile = sketch7
pad3.Length = 7
pad3.Reversed = True
doc.recompute()

boolean = body2.newObject("PartDesign::Boolean", "Boolean")
boolean.Type = "Cut"
boolean.addObjects([body])

doc.recompute()
